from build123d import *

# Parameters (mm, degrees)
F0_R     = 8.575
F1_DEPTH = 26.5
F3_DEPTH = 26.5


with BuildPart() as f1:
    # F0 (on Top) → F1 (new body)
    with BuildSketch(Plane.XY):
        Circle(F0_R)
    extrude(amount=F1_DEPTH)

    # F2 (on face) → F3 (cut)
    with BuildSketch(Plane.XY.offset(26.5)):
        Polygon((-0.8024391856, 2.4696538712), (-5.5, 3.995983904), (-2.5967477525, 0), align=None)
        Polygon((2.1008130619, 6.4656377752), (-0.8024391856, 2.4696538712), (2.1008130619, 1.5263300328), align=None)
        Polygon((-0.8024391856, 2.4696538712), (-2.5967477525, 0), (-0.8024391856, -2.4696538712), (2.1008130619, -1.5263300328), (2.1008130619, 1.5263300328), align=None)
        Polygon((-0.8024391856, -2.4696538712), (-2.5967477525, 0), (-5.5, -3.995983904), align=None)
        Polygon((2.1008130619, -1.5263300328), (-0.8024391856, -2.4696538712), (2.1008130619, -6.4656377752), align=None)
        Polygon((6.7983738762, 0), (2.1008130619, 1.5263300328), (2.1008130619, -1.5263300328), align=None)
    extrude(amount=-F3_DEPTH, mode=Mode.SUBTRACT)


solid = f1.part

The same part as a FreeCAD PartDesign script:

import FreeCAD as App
import Part
import Sketcher
Q = App.Units.Quantity


def add_polygon(sketch, points):
    """Adds a closed chain of lines whose ends are joined by coincident constraints."""
    first, n = sketch.GeometryCount, len(points)
    for a, b in zip(points, points[1:] + points[:1]):
        sketch.addGeometry(Part.LineSegment(App.Vector(*a, 0), App.Vector(*b, 0)), False)
    for i in range(n):
        sketch.addConstraint(Sketcher.Constraint("Coincident", first + i, 2, first + (i + 1) % n, 1))

doc = App.newDocument("Part")
body = doc.addObject("PartDesign::Body", "Body")

sketch1 = body.newObject("Sketcher::SketchObject", "Sketch")
sketch1.AttachmentSupport = (doc.getObject("XY_Plane"), [""])
sketch1.MapMode = "FlatFace"
sketch1.addGeometry(Part.Circle(App.Vector(0, 0, 0), App.Vector(0, 0, 1), 9), False)
sketch1.addConstraint([
    Sketcher.Constraint("Coincident", 0, 3, -1, 1),
    Sketcher.Constraint("Diameter", 0, 17.15),
])
pad1 = body.newObject("PartDesign::Pad", "Pad")
pad1.Profile = sketch1
pad1.Length = 26.5

sketch2 = body.newObject("Sketcher::SketchObject", "Sketch001")
sketch2.AttachmentSupport = (doc.getObject("XY_Plane"), [""])
sketch2.MapMode = "FlatFace"
sketch2.AttachmentOffset = App.Placement(App.Vector(0, 0, 26.5), App.Rotation())
add_polygon(sketch2, [(-0.8, 2.5), (-5.5, 4), (-2.6, 0), (-5.5, -4), (-0.8, -2.5), (2.1, -6.5), (2.1, -1.5), (6.8, 0), (2.1, 1.5), (2.1, 6.5)])
sketch2.addConstraint([
    Sketcher.Constraint("Vertical", 5),
    Sketcher.Constraint("Vertical", 8),
    Sketcher.Constraint("Symmetric", 0, 2, 2, 2, -1),
    Sketcher.Constraint("Symmetric", 5, 2, 7, 2, -1),
    Sketcher.Constraint("Symmetric", 3, 2, 9, 2, -1),
    Sketcher.Constraint("PointOnObject", 1, 2, -1),
    Sketcher.Constraint("PointOnObject", 6, 2, -1),
    Sketcher.Constraint("Parallel", 1, 4),
    Sketcher.Constraint("Parallel", 3, 6),
    Sketcher.Constraint("Parallel", 2, 9),
    Sketcher.Constraint("Equal", 0, 1),
    Sketcher.Constraint("Equal", 3, 4),
    Sketcher.Constraint("Equal", 4, 6),
    Sketcher.Constraint("Angle", 0, Q("162 deg")),
    Sketcher.Constraint("Angle", 1, Q("-54 deg")),
    Sketcher.Constraint("DistanceX", 0, 2, -1, 1, 5.5),
    Sketcher.Constraint("DistanceY", 5, 1, 5, 2, 4.939308),
])
pocket1 = body.newObject("PartDesign::Pocket", "Pocket")
pocket1.Profile = sketch2
pocket1.Length = 26.5

doc.recompute()
